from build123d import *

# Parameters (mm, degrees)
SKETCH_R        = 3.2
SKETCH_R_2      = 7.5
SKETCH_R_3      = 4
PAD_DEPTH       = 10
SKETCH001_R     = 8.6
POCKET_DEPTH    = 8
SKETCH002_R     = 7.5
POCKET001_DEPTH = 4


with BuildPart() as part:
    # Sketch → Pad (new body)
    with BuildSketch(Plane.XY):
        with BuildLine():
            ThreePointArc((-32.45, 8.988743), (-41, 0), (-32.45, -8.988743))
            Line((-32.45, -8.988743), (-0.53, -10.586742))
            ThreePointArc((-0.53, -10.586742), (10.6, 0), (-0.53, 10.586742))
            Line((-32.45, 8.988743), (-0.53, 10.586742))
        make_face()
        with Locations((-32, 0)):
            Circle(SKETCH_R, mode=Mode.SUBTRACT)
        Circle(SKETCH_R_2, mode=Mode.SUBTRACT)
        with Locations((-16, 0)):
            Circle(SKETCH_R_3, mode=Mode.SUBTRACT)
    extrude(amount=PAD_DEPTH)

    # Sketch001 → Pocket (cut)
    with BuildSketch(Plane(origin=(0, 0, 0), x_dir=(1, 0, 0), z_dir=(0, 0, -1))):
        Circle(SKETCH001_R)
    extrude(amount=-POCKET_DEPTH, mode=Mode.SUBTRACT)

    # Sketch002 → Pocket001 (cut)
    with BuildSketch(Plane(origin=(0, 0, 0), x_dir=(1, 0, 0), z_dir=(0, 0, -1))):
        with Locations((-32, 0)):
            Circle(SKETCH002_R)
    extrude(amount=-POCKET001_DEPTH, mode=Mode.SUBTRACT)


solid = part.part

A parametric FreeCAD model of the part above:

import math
import FreeCAD as App
import Part
import Sketcher
from FreeCAD import Vector

doc = App.newDocument("Part")
body = doc.addObject("PartDesign::Body", "Body")

sketch1 = body.newObject("Sketcher::SketchObject", "Sketch")
sketch1.AttachmentSupport = (doc.getObject("XY_Plane"), [""])
sketch1.MapMode = "FlatFace"
sketch1.addGeometry([
    Part.ArcOfCircle(Part.Circle(Vector(-32, 0, 0), Vector(0, 0, 1), 9), math.radians(92.865984), math.radians(267.134016)),
    Part.LineSegment(Vector(-32.45, -8.988743, 0), Vector(-0.53, -10.586742, 0)),
    Part.ArcOfCircle(Part.Circle(Vector(0, 0, 0), Vector(0, 0, 1), 10.6), math.radians(-92.865982), math.radians(92.865982)),
    Part.LineSegment(Vector(-0.53, 10.586742, 0), Vector(-32.45, 8.988743, 0)),
    Part.Circle(Vector(-32, 0, 0), Vector(0, 0, 1), 3.2),
    Part.Circle(Vector(-16, 0, 0), Vector(0, 0, 1), 4),
    Part.Circle(Vector(0, 0, 0), Vector(0, 0, 1), 7.5),
], False)
sketch1.addConstraint([
    Sketcher.Constraint("Tangent", 0, 2, 1, 1),
    Sketcher.Constraint("Tangent", 1, 2, 2, 1),
    Sketcher.Constraint("Tangent", 2, 2, 3, 1),
    Sketcher.Constraint("Tangent", 3, 2, 0, 1),
    Sketcher.Constraint("Coincident", 2, 3, -1, 1),
    Sketcher.Constraint("Coincident", 6, 3, -1, 1),
    Sketcher.Constraint("Coincident", 4, 3, 0, 3),
    Sketcher.Constraint("PointOnObject", 0, 3, -1),
    Sketcher.Constraint("PointOnObject", 5, 3, -1),
    Sketcher.Constraint("Diameter", 5, 8.0),
    Sketcher.Constraint("Diameter", 6, 15.0),
    Sketcher.Constraint("Radius", 0, 9.0),
    Sketcher.Constraint("Diameter", 4, 6.4),
    Sketcher.Constraint("Radius", 2, 10.6),
    Sketcher.Constraint("DistanceX", 0, 3, -1, 1, 32.0),
    Sketcher.Constraint("DistanceX", 5, 3, -1, 1, 16.0),
])
pad1 = body.newObject("PartDesign::Pad", "Pad")
pad1.Profile = sketch1
pad1.Length = 10

sketch2 = body.newObject("Sketcher::SketchObject", "Sketch001")
sketch2.AttachmentSupport = (doc.getObject("XY_Plane"), [""])
sketch2.MapMode = "FlatFace"
sketch2.addGeometry(Part.Circle(Vector(0, 0, 0), Vector(0, 0, 1), 8.6), False)
sketch2.addConstraint([
    Sketcher.Constraint("Coincident", 0, 3, -1, 1),
    Sketcher.Constraint("Diameter", 0, 17.2),
])
pocket1 = body.newObject("PartDesign::Pocket", "Pocket")
pocket1.Profile = sketch2
pocket1.Length = 8
pocket1.Reversed = True

sketch3 = body.newObject("Sketcher::SketchObject", "Sketch002")
sketch3.AttachmentSupport = (doc.getObject("XY_Plane"), [""])
sketch3.MapMode = "FlatFace"
sketch3.addGeometry(Part.Circle(Vector(-32, 0, 0), Vector(0, 0, 1), 7.5), False)
sketch3.addConstraint([
    Sketcher.Constraint("PointOnObject", 0, 3, -1),
    Sketcher.Constraint("Diameter", 0, 15.0),
    Sketcher.Constraint("DistanceX", 0, 3, -1, 1, 32.0),
])
pocket2 = body.newObject("PartDesign::Pocket", "Pocket001")
pocket2.Profile = sketch3
pocket2.Length = 4
pocket2.Reversed = True

doc.recompute()
